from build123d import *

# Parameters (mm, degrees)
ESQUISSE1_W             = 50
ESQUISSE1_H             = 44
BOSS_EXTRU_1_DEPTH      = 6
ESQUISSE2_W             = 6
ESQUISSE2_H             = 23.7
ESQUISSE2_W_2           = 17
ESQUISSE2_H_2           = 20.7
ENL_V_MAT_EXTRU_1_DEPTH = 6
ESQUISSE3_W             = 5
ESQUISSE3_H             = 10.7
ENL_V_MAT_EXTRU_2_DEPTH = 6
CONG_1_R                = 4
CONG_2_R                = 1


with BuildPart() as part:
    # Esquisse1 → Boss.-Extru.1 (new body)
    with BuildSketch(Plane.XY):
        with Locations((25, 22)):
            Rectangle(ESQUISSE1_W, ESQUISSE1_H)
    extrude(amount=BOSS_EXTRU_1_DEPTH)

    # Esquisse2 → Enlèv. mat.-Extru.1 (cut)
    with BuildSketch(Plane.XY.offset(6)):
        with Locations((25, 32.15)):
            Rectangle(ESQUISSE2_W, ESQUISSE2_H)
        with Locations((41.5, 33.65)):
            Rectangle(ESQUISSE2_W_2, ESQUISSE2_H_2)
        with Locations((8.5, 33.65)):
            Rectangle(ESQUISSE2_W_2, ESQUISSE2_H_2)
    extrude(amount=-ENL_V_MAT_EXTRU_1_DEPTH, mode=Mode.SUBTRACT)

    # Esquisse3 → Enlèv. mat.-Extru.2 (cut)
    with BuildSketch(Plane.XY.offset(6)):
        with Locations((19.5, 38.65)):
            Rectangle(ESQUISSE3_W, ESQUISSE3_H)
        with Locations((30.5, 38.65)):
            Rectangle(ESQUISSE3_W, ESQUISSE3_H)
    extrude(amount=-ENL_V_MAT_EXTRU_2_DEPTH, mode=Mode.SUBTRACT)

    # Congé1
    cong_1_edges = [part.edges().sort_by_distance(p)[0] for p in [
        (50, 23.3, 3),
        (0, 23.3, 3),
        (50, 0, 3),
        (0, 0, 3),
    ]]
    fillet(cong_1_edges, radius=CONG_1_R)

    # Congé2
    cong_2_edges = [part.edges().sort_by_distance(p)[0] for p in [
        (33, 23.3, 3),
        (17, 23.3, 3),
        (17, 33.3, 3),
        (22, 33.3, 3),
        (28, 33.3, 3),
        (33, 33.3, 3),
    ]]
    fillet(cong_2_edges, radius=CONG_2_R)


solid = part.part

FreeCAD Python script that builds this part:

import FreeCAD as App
import Part
import Sketcher
from FreeCAD import Vector


def edges_at(feature, points):
    """Names of the edges that pass closest to the given points."""
    edges = feature.Shape.Edges
    near = lambda p: min(range(len(edges)), key=lambda i: edges[i].distToShape(Part.Vertex(*p))[0])
    return sorted({f"Edge{near(p) + 1}" for p in points})


def add_polygon(sketch, points):
    """Adds a closed chain of lines whose ends are joined by coincident constraints."""
    first, n = sketch.GeometryCount, len(points)
    for a, b in zip(points, points[1:] + points[:1]):
        sketch.addGeometry(Part.LineSegment(App.Vector(*a, 0), App.Vector(*b, 0)), False)
    for i in range(n):
        sketch.addConstraint(Sketcher.Constraint("Coincident", first + i, 2, first + (i + 1) % n, 1))

doc = App.newDocument("Part")
body = doc.addObject("PartDesign::Body", "Body")

sketch1 = body.newObject("Sketcher::SketchObject", "Sketch")
sketch1.AttachmentSupport = (doc.getObject("XY_Plane"), [""])
sketch1.MapMode = "FlatFace"
add_polygon(sketch1, [(0, 44), (0, 0), (50, 0), (50, 44)])
sketch1.addConstraint([
    Sketcher.Constraint("Vertical", 0),
    Sketcher.Constraint("Horizontal", 1),
    Sketcher.Constraint("Vertical", 2),
    Sketcher.Constraint("Horizontal", 3),
    Sketcher.Constraint("Coincident", 0, 2, -1, 1),
    Sketcher.Constraint("DistanceX", 1, 1, 1, 2, 50.0),
    Sketcher.Constraint("DistanceY", 0, 2, 0, 1, 44.0),
])
pad1 = body.newObject("PartDesign::Pad", "Pad")
pad1.Profile = sketch1
pad1.Length = 6

sketch2 = body.newObject("Sketcher::SketchObject", "Sketch001")
sketch2.AttachmentSupport = (doc.getObject("XY_Plane"), [""])
sketch2.MapMode = "FlatFace"
sketch2.AttachmentOffset = App.Placement(Vector(0, 0, 6), App.Rotation())
add_polygon(sketch2, [(22, 44), (22, 20), (28, 20), (28, 44)])
add_polygon(sketch2, [(33, 44), (33, 23), (50, 23), (50, 44)])
add_polygon(sketch2, [(0, 44), (0, 23), (17, 23), (17, 44)])
sketch2.addConstraint([
    Sketcher.Constraint("Vertical", 0),
    Sketcher.Constraint("Horizontal", 1),
    Sketcher.Constraint("Vertical", 2),
    Sketcher.Constraint("Horizontal", 3),
    Sketcher.Constraint("Vertical", 4),
    Sketcher.Constraint("Horizontal", 5),
    Sketcher.Constraint("Vertical", 6),
    Sketcher.Constraint("Horizontal", 7),
    Sketcher.Constraint("Vertical", 8),
    Sketcher.Constraint("Horizontal", 9),
    Sketcher.Constraint("Vertical", 10),
    Sketcher.Constraint("Horizontal", 11),
    Sketcher.Constraint("PointOnObject", 8, 2, -2),
    Sketcher.Constraint("Horizontal", 3, 2, 6, 2),
    Sketcher.Constraint("Horizontal", 5, 2, 8, 2),
    Sketcher.Constraint("Horizontal", 7, 2, 10, 2),
    Sketcher.Constraint("Equal", 7, 9),
    Sketcher.Constraint("DistanceX", 1, 1, 1, 2, 6.0),
    Sketcher.Constraint("DistanceX", 5, 1, 5, 2, 17.0),
    Sketcher.Constraint("DistanceY", 0, 2, 0, 1, 23.7),
    Sketcher.Constraint("DistanceY", 4, 2, 4, 1, 20.7),
    Sketcher.Constraint("DistanceX", -1, 1, 0, 2, 22.0),
    Sketcher.Constraint("DistanceY", -1, 1, 2, 2, 44.0),
    Sketcher.Constraint("DistanceX", -1, 1, 4, 2, 33.0),
])
pocket1 = body.newObject("PartDesign::Pocket", "Pocket")
pocket1.Profile = sketch2
pocket1.Length = 6

sketch3 = body.newObject("Sketcher::SketchObject", "Sketch002")
sketch3.AttachmentSupport = (doc.getObject("XY_Plane"), [""])
sketch3.MapMode = "FlatFace"
sketch3.AttachmentOffset = App.Placement(Vector(0, 0, 6), App.Rotation())
add_polygon(sketch3, [(17, 44), (17, 33), (22, 33), (22, 44)])
add_polygon(sketch3, [(28, 44), (28, 33), (33, 33), (33, 44)])
sketch3.addConstraint([
    Sketcher.Constraint("Vertical", 0),
    Sketcher.Constraint("Horizontal", 1),
    Sketcher.Constraint("Vertical", 2),
    Sketcher.Constraint("Horizontal", 3),
    Sketcher.Constraint("Vertical", 4),
    Sketcher.Constraint("Horizontal", 5),
    Sketcher.Constraint("Vertical", 6),
    Sketcher.Constraint("Horizontal", 7),
    Sketcher.Constraint("Horizontal", 1, 2, 4, 2),
    Sketcher.Constraint("Horizontal", 3, 2, 6, 2),
    Sketcher.Constraint("Equal", 3, 5),
    Sketcher.Constraint("DistanceX", 1, 1, 1, 2, 5.0),
    Sketcher.Constraint("DistanceY", 0, 2, 0, 1, 10.7),
    Sketcher.Constraint("DistanceX", -1, 1, 0, 2, 17.0),
    Sketcher.Constraint("DistanceY", -1, 1, 2, 2, 44.0),
    Sketcher.Constraint("DistanceX", -1, 1, 4, 2, 28.0),
])
pocket2 = body.newObject("PartDesign::Pocket", "Pocket001")
pocket2.Profile = sketch3
pocket2.Length = 6
doc.recompute()

fillet = body.newObject("PartDesign::Fillet", "Fillet")
fillet.Base = (pocket2, edges_at(pocket2, [
    (50, 23.3, 3),
    (0, 23.3, 3),
    (50, 0, 3),
    (0, 0, 3),
]))
fillet.Radius = 4
doc.recompute()

fillet2 = body.newObject("PartDesign::Fillet", "Fillet001")
fillet2.Base = (fillet, edges_at(fillet, [
    (33, 23.3, 3),
    (17, 23.3, 3),
    (17, 33.3, 3),
    (22, 33.3, 3),
    (28, 33.3, 3),
    (33, 33.3, 3),
]))
fillet2.Radius = 1

doc.recompute()
